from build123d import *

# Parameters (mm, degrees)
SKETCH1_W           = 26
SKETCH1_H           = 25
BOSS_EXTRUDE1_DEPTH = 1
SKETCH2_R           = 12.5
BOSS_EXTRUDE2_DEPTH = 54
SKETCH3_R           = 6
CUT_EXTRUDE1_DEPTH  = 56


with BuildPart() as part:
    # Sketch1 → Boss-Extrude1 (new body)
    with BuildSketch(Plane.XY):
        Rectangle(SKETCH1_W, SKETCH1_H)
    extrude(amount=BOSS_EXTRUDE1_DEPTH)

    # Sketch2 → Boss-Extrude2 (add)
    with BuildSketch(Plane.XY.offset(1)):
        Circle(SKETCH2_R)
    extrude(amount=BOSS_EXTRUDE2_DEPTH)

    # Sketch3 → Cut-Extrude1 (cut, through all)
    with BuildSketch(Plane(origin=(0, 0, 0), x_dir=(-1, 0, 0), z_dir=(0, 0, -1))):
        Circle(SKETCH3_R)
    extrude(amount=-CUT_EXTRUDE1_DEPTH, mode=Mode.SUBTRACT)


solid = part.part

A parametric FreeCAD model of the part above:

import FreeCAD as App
import Part
import Sketcher
from FreeCAD import Vector
Q = App.Units.Quantity

doc = App.newDocument("Part")
params = doc.addObject("Spreadsheet::Sheet", "Params")
for row, (alias, value) in enumerate([
    ("sketch1_width", "26 mm"),
    ("sketch1_height", "25 mm"),
    ("pad1_length", "1 mm"),
    ("sketch2_diameter", "25 mm"),
    ("pad2_length", "54 mm"),
    ("sketch3_diameter", "12 mm"),
], start=1):
    params.set(f"A{row}", alias)
    params.set(f"B{row}", "=" + value)
    params.setAlias(f"B{row}", alias)

body = doc.addObject("PartDesign::Body", "Body")

# Sketch on XY plane
sketch1 = body.newObject("Sketcher::SketchObject", "Sketch")
sketch1.AttachmentSupport = (doc.getObject("XY_Plane"), [""])
sketch1.MapMode = "FlatFace"
sketch1.addGeometry([
    Part.LineSegment(Vector(-13, 12, 0), Vector(-13, -12, 0)),
    Part.LineSegment(Vector(-13, -12, 0), Vector(13, -12, 0)),
    Part.LineSegment(Vector(13, -12, 0), Vector(13, 12, 0)),
    Part.LineSegment(Vector(13, 12, 0), Vector(-13, 12, 0)),
], False)
sketch1.addConstraint([
    Sketcher.Constraint("Coincident", 0, 2, 1, 1),
    Sketcher.Constraint("Coincident", 1, 2, 2, 1),
    Sketcher.Constraint("Coincident", 2, 2, 3, 1),
    Sketcher.Constraint("Coincident", 3, 2, 0, 1),
    Sketcher.Constraint("Vertical", 0),
    Sketcher.Constraint("Horizontal", 1),
    Sketcher.Constraint("Vertical", 2),
    Sketcher.Constraint("Horizontal", 3),
    Sketcher.Constraint("Symmetric", 0, 2, 2, 2, -1, 1),
    Sketcher.Constraint("DistanceX", 1, 1, 1, 2, Q("26 mm")),
    Sketcher.Constraint("DistanceY", 0, 2, 0, 1, Q("25 mm")),
])
sketch1.setExpression("Constraints[9]", "Params.sketch1_width")
sketch1.setExpression("Constraints[10]", "Params.sketch1_height")
pad1 = body.newObject("PartDesign::Pad", "Pad")
pad1.Profile = sketch1
pad1.setExpression("Length", "Params.pad1_length")

# Sketch on XY plane
sketch2 = body.newObject("Sketcher::SketchObject", "Sketch001")
sketch2.AttachmentSupport = (doc.getObject("XY_Plane"), [""])
sketch2.MapMode = "FlatFace"
sketch2.AttachmentOffset = App.Placement(Vector(0, 0, 1), App.Rotation())
sketch2.addGeometry(Part.Circle(Vector(0, 0, 0), Vector(0, 0, 1), 12), False)
sketch2.addConstraint([
    Sketcher.Constraint("Coincident", 0, 3, -1, 1),
    Sketcher.Constraint("Diameter", 0, Q("25 mm")),
])
sketch2.setExpression("Constraints[1]", "Params.sketch2_diameter")
pad2 = body.newObject("PartDesign::Pad", "Pad001")
pad2.Profile = sketch2
pad2.setExpression("Length", "Params.pad2_length")

# Sketch on XY plane
sketch3 = body.newObject("Sketcher::SketchObject", "Sketch002")
sketch3.AttachmentSupport = (doc.getObject("XY_Plane"), [""])
sketch3.MapMode = "FlatFace"
sketch3.addGeometry(Part.Circle(Vector(0, 0, 0), Vector(0, 0, 1), 6), False)
sketch3.addConstraint([
    Sketcher.Constraint("Coincident", 0, 3, -1, 1),
    Sketcher.Constraint("Diameter", 0, Q("12 mm")),
])
sketch3.setExpression("Constraints[1]", "Params.sketch3_diameter")
pocket1 = body.newObject("PartDesign::Pocket", "Pocket")
pocket1.Profile = sketch3
pocket1.Type = "ThroughAll"
pocket1.Reversed = True

doc.recompute()
